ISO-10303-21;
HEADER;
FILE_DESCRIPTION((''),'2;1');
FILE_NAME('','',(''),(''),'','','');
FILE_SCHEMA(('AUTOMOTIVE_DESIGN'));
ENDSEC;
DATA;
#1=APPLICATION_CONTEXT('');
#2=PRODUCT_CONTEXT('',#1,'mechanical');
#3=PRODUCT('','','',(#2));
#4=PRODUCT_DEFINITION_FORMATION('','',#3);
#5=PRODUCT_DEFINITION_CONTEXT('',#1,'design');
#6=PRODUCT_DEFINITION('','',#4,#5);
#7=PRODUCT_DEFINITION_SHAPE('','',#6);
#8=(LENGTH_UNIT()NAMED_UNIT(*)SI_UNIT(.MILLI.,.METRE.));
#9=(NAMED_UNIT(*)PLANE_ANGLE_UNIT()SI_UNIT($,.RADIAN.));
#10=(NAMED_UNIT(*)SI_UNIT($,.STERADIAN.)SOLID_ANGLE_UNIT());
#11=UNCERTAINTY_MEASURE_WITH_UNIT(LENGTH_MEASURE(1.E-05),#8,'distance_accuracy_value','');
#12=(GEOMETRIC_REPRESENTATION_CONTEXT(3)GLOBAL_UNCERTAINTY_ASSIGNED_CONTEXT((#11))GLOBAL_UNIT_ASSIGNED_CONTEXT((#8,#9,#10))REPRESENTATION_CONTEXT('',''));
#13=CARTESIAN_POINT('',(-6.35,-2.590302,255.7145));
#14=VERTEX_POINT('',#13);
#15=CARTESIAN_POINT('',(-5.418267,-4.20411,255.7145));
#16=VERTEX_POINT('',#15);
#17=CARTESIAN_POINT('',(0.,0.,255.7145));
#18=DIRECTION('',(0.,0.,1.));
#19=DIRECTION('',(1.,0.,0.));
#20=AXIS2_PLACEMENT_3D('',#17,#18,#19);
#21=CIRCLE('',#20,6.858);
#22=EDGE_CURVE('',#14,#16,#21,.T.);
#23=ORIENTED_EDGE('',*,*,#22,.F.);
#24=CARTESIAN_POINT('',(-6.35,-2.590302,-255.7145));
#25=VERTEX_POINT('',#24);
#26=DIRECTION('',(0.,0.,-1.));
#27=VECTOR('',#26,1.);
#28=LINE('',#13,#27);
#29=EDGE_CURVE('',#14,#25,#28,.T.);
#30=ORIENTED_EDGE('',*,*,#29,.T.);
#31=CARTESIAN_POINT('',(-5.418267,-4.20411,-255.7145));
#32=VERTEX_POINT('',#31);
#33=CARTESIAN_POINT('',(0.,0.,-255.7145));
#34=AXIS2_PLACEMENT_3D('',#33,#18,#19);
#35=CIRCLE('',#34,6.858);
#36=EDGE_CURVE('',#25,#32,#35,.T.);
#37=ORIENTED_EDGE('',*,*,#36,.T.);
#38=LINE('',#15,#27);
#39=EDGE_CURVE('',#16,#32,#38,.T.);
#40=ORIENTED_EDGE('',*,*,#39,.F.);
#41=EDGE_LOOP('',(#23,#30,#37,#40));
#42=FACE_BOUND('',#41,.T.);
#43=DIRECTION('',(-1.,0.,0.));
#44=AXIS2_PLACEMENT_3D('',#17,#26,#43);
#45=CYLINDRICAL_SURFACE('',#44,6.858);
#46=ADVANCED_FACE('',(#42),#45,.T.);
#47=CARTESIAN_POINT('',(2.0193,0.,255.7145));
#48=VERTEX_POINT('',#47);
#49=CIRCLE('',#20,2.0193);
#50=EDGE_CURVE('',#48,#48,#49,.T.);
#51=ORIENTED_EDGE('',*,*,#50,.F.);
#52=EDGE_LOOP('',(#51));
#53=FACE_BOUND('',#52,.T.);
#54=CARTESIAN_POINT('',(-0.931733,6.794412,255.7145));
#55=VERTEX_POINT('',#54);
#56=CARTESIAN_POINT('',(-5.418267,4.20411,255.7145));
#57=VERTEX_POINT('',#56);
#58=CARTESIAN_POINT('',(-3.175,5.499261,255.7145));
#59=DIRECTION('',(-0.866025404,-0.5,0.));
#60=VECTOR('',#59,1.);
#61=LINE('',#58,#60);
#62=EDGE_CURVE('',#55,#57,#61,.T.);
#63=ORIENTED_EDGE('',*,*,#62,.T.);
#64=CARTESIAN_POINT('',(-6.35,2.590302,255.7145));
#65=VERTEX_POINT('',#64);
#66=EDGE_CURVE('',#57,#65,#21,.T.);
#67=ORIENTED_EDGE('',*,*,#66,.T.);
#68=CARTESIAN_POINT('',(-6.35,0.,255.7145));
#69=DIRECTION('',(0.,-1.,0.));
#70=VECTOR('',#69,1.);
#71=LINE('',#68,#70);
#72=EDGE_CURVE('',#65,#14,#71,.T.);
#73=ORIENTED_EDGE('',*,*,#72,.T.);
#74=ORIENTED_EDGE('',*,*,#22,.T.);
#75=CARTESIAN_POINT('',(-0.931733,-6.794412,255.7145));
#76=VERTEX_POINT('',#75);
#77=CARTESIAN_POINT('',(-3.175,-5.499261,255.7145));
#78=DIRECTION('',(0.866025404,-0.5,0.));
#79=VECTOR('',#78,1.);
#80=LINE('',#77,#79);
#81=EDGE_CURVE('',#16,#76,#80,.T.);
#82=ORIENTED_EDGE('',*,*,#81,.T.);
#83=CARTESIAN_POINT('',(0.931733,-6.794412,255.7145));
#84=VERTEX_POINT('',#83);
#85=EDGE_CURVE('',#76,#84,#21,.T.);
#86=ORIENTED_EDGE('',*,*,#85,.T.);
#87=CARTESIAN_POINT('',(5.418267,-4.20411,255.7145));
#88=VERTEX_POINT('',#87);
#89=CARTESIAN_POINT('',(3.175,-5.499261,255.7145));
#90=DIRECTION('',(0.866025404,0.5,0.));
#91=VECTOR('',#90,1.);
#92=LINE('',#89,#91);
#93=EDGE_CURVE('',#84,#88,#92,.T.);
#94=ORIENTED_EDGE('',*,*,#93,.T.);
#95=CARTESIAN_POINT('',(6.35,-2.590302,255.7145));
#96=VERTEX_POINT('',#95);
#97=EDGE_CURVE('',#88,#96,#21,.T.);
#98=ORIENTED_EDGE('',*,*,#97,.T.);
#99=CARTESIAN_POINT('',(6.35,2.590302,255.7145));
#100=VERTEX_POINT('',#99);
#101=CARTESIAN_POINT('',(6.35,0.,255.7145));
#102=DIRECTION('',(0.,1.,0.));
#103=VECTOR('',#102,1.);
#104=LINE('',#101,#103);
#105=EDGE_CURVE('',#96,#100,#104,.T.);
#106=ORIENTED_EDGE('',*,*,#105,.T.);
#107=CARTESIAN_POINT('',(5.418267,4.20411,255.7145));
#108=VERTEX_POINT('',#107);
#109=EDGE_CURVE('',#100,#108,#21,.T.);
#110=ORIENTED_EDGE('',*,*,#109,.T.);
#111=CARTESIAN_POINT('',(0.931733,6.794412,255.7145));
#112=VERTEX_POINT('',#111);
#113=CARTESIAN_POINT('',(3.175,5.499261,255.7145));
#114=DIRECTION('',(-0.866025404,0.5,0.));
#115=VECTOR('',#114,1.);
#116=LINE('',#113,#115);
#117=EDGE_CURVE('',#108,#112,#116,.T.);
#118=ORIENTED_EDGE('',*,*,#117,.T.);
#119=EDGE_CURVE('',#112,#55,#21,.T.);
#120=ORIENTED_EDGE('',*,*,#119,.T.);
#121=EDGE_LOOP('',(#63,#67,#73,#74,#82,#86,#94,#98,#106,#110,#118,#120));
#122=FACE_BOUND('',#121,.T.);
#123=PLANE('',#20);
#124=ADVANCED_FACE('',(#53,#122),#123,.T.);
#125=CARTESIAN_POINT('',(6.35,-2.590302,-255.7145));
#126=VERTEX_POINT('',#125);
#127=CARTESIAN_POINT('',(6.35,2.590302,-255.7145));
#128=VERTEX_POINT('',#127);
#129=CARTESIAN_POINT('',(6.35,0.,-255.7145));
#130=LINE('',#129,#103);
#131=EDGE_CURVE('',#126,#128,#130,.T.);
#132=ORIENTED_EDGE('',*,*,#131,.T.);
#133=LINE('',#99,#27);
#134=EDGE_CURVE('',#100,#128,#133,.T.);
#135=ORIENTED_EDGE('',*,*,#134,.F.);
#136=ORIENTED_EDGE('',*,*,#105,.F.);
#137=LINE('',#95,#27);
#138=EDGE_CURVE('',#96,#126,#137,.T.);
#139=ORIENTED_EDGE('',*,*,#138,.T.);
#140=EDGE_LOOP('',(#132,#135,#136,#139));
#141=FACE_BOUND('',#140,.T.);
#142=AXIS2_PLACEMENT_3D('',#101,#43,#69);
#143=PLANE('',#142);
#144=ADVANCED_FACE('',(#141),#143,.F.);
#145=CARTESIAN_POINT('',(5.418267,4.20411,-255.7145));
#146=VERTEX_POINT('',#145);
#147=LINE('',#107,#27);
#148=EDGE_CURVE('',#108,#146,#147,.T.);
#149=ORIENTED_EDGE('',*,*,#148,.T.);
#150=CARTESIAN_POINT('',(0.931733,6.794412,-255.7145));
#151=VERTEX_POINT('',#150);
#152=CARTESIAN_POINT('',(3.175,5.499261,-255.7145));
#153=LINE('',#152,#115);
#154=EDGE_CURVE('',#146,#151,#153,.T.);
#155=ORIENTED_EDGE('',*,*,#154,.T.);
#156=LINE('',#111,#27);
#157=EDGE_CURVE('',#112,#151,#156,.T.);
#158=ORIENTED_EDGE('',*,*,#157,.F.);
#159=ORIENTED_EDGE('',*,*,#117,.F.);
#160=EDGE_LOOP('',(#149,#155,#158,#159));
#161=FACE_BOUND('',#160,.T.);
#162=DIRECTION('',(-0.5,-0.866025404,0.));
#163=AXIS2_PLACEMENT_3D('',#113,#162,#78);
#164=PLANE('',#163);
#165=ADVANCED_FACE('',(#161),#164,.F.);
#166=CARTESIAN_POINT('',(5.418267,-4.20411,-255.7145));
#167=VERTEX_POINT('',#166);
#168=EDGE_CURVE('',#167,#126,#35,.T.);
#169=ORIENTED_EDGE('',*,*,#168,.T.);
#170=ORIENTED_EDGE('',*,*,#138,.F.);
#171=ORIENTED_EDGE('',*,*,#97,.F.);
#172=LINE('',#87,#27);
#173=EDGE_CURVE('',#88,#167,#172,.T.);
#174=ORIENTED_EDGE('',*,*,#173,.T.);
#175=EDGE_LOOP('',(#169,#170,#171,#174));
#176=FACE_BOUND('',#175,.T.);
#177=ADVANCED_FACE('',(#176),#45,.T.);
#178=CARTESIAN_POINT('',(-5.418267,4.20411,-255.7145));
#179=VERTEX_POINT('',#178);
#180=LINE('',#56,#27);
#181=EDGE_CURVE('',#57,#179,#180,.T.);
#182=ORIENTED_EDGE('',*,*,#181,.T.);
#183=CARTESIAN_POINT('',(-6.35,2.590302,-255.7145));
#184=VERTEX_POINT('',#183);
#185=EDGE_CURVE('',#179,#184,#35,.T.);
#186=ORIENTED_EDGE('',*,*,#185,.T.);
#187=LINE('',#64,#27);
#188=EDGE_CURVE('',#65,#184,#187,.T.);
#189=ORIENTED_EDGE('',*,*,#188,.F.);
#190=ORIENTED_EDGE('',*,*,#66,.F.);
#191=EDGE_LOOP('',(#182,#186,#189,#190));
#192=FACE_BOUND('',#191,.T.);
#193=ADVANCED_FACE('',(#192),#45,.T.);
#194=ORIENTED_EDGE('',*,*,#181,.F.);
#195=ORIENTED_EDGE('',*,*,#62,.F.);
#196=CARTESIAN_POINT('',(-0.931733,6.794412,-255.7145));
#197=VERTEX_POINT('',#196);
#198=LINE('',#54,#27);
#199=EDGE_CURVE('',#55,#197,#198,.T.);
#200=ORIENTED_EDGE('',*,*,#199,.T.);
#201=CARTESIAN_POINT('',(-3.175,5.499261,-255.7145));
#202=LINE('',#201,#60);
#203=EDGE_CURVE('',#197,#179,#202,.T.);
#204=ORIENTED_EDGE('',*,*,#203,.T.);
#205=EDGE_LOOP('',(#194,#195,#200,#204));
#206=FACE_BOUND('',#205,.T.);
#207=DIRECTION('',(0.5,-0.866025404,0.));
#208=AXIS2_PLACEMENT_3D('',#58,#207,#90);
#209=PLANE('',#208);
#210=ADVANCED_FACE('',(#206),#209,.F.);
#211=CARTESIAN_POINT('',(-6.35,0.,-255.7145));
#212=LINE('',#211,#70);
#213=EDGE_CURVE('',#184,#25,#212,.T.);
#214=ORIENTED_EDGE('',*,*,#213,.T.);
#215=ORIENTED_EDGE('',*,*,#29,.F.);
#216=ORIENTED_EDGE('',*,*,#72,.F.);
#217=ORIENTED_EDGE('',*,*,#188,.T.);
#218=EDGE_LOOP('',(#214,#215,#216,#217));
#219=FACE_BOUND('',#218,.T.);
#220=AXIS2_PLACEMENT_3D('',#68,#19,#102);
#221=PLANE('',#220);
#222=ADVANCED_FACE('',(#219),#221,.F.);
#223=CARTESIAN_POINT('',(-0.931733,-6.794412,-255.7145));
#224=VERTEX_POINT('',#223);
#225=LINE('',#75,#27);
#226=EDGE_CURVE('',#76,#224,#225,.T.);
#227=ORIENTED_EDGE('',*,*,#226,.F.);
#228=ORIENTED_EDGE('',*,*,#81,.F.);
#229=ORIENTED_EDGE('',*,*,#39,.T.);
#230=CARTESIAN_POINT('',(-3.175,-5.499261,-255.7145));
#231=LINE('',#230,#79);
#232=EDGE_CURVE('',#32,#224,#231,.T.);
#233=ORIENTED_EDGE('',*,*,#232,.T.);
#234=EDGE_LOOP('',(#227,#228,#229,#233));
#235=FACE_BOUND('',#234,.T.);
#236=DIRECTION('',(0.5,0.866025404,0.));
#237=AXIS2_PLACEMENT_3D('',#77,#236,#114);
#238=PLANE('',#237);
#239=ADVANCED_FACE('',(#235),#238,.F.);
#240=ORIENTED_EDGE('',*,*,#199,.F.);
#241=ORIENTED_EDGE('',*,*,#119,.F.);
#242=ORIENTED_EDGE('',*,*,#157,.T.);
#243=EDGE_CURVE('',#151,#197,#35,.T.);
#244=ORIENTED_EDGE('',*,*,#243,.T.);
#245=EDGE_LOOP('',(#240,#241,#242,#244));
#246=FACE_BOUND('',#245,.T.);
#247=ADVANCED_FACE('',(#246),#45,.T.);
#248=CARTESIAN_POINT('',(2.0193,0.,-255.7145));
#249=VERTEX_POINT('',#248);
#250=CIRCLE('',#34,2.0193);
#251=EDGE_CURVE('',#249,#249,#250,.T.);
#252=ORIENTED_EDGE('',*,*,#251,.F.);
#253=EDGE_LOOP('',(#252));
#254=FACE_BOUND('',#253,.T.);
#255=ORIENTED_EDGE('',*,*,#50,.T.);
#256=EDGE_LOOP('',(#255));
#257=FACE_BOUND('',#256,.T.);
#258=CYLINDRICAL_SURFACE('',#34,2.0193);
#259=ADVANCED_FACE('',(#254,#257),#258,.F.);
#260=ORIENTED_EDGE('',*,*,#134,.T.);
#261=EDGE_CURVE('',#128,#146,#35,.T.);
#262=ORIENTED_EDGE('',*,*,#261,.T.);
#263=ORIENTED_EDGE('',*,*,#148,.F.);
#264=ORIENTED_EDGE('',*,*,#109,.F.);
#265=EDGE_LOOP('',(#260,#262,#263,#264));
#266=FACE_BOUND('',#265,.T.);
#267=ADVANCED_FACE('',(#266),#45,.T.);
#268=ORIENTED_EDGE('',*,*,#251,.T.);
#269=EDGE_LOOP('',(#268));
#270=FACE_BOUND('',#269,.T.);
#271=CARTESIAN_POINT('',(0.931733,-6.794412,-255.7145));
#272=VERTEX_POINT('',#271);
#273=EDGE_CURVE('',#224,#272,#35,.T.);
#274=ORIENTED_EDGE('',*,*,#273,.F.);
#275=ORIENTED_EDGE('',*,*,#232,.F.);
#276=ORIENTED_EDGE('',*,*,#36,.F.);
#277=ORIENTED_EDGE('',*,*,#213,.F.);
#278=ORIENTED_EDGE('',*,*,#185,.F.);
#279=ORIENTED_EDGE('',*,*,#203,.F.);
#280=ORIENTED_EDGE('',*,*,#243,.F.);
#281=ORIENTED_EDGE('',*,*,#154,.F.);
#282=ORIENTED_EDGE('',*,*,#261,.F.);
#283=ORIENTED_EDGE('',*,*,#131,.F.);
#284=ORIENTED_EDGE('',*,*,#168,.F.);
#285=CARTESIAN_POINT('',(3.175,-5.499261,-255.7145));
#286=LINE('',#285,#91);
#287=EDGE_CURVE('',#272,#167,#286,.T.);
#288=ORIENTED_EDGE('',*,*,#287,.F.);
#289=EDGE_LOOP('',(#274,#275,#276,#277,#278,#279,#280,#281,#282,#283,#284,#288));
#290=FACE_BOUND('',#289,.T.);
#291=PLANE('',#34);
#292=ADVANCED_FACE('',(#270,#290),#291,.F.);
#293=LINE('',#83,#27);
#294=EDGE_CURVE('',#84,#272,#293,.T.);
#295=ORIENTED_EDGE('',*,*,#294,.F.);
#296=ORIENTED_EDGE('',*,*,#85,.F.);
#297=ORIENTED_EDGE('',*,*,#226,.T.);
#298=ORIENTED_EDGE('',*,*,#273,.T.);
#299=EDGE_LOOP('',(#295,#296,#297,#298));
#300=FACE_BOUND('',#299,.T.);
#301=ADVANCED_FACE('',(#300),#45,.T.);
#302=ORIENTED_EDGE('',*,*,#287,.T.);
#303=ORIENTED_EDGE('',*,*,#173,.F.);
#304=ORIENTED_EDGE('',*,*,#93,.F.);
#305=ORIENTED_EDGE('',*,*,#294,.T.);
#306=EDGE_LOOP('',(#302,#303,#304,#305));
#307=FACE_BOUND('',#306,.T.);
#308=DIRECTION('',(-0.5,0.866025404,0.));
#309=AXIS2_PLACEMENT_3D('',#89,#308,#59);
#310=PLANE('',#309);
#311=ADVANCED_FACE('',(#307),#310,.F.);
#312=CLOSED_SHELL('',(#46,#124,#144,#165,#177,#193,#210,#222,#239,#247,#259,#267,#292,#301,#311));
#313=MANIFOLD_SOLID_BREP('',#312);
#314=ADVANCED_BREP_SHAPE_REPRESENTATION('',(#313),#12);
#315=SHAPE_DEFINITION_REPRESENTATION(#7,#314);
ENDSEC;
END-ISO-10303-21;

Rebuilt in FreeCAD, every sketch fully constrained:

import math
import FreeCAD as App
import Part
import Sketcher
Q = App.Units.Quantity

doc = App.newDocument("Part")
params = doc.addObject("Spreadsheet::Sheet", "Params")
for row, (alias, value) in enumerate([
    ("sketch1_radius", "0.27 in"),
    ("pad1_length", "20.135 in"),
    ("sketch2_diameter", "0.159 in"),
], start=1):
    params.set(f"A{row}", alias)
    params.set(f"B{row}", "=" + value)
    params.setAlias(f"B{row}", alias)

body = doc.addObject("PartDesign::Body", "Body")

# Sketch on XY plane
sketch1 = body.newObject("Sketcher::SketchObject", "Sketch")
sketch1.AttachmentSupport = (doc.getObject("XY_Plane"), [""])
sketch1.MapMode = "FlatFace"
sketch1.addGeometry(Part.ArcOfCircle(Part.Circle(App.Vector(0, 0, 0), App.Vector(0, 0, 1), 6.858), math.radians(82.191607), math.radians(97.808393)), False)
sketch1.addGeometry(Part.LineSegment(App.Vector(-0.931733, 6.794412, 0), App.Vector(-5.418267, 4.20411, 0)), False)
sketch1.addGeometry(Part.ArcOfCircle(Part.Circle(App.Vector(0, 0, 0), App.Vector(0, 0, 1), 6.858), math.radians(142.191607), math.radians(157.808393)), False)
sketch1.addGeometry(Part.LineSegment(App.Vector(-6.35, 2.590302, 0), App.Vector(-6.35, -2.590302, 0)), False)
sketch1.addGeometry(Part.ArcOfCircle(Part.Circle(App.Vector(0, 0, 0), App.Vector(0, 0, 1), 6.858), math.radians(-157.808393), math.radians(-142.191607)), False)
sketch1.addGeometry(Part.LineSegment(App.Vector(-5.418267, -4.20411, 0), App.Vector(-0.931733, -6.794412, 0)), False)
sketch1.addGeometry(Part.ArcOfCircle(Part.Circle(App.Vector(0, 0, 0), App.Vector(0, 0, 1), 6.858), math.radians(-97.808393), math.radians(-82.191607)), False)
sketch1.addGeometry(Part.LineSegment(App.Vector(0.931733, -6.794412, 0), App.Vector(5.418267, -4.20411, 0)), False)
sketch1.addGeometry(Part.ArcOfCircle(Part.Circle(App.Vector(0, 0, 0), App.Vector(0, 0, 1), 6.858), math.radians(-37.808393), math.radians(-22.191607)), False)
sketch1.addGeometry(Part.LineSegment(App.Vector(6.35, -2.590302, 0), App.Vector(6.35, 2.590302, 0)), False)
sketch1.addGeometry(Part.ArcOfCircle(Part.Circle(App.Vector(0, 0, 0), App.Vector(0, 0, 1), 6.858), math.radians(22.191607), math.radians(37.808393)), False)
sketch1.addGeometry(Part.LineSegment(App.Vector(5.418267, 4.20411, 0), App.Vector(0.931733, 6.794412, 0)), False)
sketch1.addConstraint(Sketcher.Constraint("Coincident", 0, 2, 1, 1))
sketch1.addConstraint(Sketcher.Constraint("Coincident", 1, 2, 2, 1))
sketch1.addConstraint(Sketcher.Constraint("Coincident", 2, 2, 3, 1))
sketch1.addConstraint(Sketcher.Constraint("Coincident", 3, 2, 4, 1))
sketch1.addConstraint(Sketcher.Constraint("Coincident", 4, 2, 5, 1))
sketch1.addConstraint(Sketcher.Constraint("Coincident", 5, 2, 6, 1))
sketch1.addConstraint(Sketcher.Constraint("Coincident", 6, 2, 7, 1))
sketch1.addConstraint(Sketcher.Constraint("Coincident", 7, 2, 8, 1))
sketch1.addConstraint(Sketcher.Constraint("Coincident", 8, 2, 9, 1))
sketch1.addConstraint(Sketcher.Constraint("Coincident", 9, 2, 10, 1))
sketch1.addConstraint(Sketcher.Constraint("Coincident", 10, 2, 11, 1))
sketch1.addConstraint(Sketcher.Constraint("Coincident", 11, 2, 0, 1))
sketch1.addConstraint(Sketcher.Constraint("Vertical", 3))
sketch1.addConstraint(Sketcher.Constraint("Vertical", 9))
sketch1.addConstraint(Sketcher.Constraint("Coincident", 0, 3, -1, 1))
sketch1.addConstraint(Sketcher.Constraint("Coincident", 2, 3, -1, 1))
sketch1.addConstraint(Sketcher.Constraint("Coincident", 4, 3, -1, 1))
sketch1.addConstraint(Sketcher.Constraint("Coincident", 6, 3, -1, 1))
sketch1.addConstraint(Sketcher.Constraint("Coincident", 8, 3, -1, 1))
sketch1.addConstraint(Sketcher.Constraint("Coincident", 10, 3, -1, 1))
sketch1.addConstraint(Sketcher.Constraint("Equal", 0, 2))
sketch1.addConstraint(Sketcher.Constraint("Equal", 2, 4))
sketch1.addConstraint(Sketcher.Constraint("Equal", 4, 6))
sketch1.addConstraint(Sketcher.Constraint("Equal", 6, 8))
sketch1.addConstraint(Sketcher.Constraint("Equal", 8, 10))
sketch1.addConstraint(Sketcher.Constraint("Parallel", 1, 7))
sketch1.addConstraint(Sketcher.Constraint("Parallel", 5, 11))
sketch1.addConstraint(Sketcher.Constraint("Horizontal", 5, 2, 6, 2))
sketch1.addConstraint(Sketcher.Constraint("Horizontal", 4, 2, 7, 2))
sketch1.addConstraint(Sketcher.Constraint("Horizontal", 3, 2, 8, 2))
sketch1.addConstraint(Sketcher.Constraint("Horizontal", 1, 2, 10, 2))
sketch1.addConstraint(Sketcher.Constraint("Vertical", 1, 2, 4, 2))
sketch1.addConstraint(Sketcher.Constraint("Radius", 0, Q("0.27 in")))
sketch1.addConstraint(Sketcher.Constraint("Angle", 1, Q("-150 deg")))
sketch1.addConstraint(Sketcher.Constraint("DistanceX", 2, 2, -1, 1, Q("0.25 in")))
sketch1.addConstraint(Sketcher.Constraint("DistanceX", 4, 2, 6, 2, Q("0.25 in")))
sketch1.setExpression("Constraints[32]", "Params.sketch1_radius")
pad1 = body.newObject("PartDesign::Pad", "Pad")
pad1.Profile = sketch1
pad1.setExpression("Length", "Params.pad1_length")
pad1.Midplane = True

# Sketch on XY plane
sketch2 = body.newObject("Sketcher::SketchObject", "Sketch001")
sketch2.AttachmentSupport = (doc.getObject("XY_Plane"), [""])
sketch2.MapMode = "FlatFace"
sketch2.AttachmentOffset = App.Placement(App.Vector(0, 0, 10.0675 * 25.4), App.Rotation())
sketch2.addGeometry(Part.Circle(App.Vector(0, 0, 0), App.Vector(0, 0, 1), 2.0193), False)
sketch2.addConstraint(Sketcher.Constraint("Coincident", 0, 3, -1, 1))
sketch2.addConstraint(Sketcher.Constraint("Diameter", 0, Q("0.159 in")))
sketch2.setExpression("Constraints[1]", "Params.sketch2_diameter")
pocket1 = body.newObject("PartDesign::Pocket", "Pocket")
pocket1.Profile = sketch2
pocket1.Type = "ThroughAll"

doc.recompute()
